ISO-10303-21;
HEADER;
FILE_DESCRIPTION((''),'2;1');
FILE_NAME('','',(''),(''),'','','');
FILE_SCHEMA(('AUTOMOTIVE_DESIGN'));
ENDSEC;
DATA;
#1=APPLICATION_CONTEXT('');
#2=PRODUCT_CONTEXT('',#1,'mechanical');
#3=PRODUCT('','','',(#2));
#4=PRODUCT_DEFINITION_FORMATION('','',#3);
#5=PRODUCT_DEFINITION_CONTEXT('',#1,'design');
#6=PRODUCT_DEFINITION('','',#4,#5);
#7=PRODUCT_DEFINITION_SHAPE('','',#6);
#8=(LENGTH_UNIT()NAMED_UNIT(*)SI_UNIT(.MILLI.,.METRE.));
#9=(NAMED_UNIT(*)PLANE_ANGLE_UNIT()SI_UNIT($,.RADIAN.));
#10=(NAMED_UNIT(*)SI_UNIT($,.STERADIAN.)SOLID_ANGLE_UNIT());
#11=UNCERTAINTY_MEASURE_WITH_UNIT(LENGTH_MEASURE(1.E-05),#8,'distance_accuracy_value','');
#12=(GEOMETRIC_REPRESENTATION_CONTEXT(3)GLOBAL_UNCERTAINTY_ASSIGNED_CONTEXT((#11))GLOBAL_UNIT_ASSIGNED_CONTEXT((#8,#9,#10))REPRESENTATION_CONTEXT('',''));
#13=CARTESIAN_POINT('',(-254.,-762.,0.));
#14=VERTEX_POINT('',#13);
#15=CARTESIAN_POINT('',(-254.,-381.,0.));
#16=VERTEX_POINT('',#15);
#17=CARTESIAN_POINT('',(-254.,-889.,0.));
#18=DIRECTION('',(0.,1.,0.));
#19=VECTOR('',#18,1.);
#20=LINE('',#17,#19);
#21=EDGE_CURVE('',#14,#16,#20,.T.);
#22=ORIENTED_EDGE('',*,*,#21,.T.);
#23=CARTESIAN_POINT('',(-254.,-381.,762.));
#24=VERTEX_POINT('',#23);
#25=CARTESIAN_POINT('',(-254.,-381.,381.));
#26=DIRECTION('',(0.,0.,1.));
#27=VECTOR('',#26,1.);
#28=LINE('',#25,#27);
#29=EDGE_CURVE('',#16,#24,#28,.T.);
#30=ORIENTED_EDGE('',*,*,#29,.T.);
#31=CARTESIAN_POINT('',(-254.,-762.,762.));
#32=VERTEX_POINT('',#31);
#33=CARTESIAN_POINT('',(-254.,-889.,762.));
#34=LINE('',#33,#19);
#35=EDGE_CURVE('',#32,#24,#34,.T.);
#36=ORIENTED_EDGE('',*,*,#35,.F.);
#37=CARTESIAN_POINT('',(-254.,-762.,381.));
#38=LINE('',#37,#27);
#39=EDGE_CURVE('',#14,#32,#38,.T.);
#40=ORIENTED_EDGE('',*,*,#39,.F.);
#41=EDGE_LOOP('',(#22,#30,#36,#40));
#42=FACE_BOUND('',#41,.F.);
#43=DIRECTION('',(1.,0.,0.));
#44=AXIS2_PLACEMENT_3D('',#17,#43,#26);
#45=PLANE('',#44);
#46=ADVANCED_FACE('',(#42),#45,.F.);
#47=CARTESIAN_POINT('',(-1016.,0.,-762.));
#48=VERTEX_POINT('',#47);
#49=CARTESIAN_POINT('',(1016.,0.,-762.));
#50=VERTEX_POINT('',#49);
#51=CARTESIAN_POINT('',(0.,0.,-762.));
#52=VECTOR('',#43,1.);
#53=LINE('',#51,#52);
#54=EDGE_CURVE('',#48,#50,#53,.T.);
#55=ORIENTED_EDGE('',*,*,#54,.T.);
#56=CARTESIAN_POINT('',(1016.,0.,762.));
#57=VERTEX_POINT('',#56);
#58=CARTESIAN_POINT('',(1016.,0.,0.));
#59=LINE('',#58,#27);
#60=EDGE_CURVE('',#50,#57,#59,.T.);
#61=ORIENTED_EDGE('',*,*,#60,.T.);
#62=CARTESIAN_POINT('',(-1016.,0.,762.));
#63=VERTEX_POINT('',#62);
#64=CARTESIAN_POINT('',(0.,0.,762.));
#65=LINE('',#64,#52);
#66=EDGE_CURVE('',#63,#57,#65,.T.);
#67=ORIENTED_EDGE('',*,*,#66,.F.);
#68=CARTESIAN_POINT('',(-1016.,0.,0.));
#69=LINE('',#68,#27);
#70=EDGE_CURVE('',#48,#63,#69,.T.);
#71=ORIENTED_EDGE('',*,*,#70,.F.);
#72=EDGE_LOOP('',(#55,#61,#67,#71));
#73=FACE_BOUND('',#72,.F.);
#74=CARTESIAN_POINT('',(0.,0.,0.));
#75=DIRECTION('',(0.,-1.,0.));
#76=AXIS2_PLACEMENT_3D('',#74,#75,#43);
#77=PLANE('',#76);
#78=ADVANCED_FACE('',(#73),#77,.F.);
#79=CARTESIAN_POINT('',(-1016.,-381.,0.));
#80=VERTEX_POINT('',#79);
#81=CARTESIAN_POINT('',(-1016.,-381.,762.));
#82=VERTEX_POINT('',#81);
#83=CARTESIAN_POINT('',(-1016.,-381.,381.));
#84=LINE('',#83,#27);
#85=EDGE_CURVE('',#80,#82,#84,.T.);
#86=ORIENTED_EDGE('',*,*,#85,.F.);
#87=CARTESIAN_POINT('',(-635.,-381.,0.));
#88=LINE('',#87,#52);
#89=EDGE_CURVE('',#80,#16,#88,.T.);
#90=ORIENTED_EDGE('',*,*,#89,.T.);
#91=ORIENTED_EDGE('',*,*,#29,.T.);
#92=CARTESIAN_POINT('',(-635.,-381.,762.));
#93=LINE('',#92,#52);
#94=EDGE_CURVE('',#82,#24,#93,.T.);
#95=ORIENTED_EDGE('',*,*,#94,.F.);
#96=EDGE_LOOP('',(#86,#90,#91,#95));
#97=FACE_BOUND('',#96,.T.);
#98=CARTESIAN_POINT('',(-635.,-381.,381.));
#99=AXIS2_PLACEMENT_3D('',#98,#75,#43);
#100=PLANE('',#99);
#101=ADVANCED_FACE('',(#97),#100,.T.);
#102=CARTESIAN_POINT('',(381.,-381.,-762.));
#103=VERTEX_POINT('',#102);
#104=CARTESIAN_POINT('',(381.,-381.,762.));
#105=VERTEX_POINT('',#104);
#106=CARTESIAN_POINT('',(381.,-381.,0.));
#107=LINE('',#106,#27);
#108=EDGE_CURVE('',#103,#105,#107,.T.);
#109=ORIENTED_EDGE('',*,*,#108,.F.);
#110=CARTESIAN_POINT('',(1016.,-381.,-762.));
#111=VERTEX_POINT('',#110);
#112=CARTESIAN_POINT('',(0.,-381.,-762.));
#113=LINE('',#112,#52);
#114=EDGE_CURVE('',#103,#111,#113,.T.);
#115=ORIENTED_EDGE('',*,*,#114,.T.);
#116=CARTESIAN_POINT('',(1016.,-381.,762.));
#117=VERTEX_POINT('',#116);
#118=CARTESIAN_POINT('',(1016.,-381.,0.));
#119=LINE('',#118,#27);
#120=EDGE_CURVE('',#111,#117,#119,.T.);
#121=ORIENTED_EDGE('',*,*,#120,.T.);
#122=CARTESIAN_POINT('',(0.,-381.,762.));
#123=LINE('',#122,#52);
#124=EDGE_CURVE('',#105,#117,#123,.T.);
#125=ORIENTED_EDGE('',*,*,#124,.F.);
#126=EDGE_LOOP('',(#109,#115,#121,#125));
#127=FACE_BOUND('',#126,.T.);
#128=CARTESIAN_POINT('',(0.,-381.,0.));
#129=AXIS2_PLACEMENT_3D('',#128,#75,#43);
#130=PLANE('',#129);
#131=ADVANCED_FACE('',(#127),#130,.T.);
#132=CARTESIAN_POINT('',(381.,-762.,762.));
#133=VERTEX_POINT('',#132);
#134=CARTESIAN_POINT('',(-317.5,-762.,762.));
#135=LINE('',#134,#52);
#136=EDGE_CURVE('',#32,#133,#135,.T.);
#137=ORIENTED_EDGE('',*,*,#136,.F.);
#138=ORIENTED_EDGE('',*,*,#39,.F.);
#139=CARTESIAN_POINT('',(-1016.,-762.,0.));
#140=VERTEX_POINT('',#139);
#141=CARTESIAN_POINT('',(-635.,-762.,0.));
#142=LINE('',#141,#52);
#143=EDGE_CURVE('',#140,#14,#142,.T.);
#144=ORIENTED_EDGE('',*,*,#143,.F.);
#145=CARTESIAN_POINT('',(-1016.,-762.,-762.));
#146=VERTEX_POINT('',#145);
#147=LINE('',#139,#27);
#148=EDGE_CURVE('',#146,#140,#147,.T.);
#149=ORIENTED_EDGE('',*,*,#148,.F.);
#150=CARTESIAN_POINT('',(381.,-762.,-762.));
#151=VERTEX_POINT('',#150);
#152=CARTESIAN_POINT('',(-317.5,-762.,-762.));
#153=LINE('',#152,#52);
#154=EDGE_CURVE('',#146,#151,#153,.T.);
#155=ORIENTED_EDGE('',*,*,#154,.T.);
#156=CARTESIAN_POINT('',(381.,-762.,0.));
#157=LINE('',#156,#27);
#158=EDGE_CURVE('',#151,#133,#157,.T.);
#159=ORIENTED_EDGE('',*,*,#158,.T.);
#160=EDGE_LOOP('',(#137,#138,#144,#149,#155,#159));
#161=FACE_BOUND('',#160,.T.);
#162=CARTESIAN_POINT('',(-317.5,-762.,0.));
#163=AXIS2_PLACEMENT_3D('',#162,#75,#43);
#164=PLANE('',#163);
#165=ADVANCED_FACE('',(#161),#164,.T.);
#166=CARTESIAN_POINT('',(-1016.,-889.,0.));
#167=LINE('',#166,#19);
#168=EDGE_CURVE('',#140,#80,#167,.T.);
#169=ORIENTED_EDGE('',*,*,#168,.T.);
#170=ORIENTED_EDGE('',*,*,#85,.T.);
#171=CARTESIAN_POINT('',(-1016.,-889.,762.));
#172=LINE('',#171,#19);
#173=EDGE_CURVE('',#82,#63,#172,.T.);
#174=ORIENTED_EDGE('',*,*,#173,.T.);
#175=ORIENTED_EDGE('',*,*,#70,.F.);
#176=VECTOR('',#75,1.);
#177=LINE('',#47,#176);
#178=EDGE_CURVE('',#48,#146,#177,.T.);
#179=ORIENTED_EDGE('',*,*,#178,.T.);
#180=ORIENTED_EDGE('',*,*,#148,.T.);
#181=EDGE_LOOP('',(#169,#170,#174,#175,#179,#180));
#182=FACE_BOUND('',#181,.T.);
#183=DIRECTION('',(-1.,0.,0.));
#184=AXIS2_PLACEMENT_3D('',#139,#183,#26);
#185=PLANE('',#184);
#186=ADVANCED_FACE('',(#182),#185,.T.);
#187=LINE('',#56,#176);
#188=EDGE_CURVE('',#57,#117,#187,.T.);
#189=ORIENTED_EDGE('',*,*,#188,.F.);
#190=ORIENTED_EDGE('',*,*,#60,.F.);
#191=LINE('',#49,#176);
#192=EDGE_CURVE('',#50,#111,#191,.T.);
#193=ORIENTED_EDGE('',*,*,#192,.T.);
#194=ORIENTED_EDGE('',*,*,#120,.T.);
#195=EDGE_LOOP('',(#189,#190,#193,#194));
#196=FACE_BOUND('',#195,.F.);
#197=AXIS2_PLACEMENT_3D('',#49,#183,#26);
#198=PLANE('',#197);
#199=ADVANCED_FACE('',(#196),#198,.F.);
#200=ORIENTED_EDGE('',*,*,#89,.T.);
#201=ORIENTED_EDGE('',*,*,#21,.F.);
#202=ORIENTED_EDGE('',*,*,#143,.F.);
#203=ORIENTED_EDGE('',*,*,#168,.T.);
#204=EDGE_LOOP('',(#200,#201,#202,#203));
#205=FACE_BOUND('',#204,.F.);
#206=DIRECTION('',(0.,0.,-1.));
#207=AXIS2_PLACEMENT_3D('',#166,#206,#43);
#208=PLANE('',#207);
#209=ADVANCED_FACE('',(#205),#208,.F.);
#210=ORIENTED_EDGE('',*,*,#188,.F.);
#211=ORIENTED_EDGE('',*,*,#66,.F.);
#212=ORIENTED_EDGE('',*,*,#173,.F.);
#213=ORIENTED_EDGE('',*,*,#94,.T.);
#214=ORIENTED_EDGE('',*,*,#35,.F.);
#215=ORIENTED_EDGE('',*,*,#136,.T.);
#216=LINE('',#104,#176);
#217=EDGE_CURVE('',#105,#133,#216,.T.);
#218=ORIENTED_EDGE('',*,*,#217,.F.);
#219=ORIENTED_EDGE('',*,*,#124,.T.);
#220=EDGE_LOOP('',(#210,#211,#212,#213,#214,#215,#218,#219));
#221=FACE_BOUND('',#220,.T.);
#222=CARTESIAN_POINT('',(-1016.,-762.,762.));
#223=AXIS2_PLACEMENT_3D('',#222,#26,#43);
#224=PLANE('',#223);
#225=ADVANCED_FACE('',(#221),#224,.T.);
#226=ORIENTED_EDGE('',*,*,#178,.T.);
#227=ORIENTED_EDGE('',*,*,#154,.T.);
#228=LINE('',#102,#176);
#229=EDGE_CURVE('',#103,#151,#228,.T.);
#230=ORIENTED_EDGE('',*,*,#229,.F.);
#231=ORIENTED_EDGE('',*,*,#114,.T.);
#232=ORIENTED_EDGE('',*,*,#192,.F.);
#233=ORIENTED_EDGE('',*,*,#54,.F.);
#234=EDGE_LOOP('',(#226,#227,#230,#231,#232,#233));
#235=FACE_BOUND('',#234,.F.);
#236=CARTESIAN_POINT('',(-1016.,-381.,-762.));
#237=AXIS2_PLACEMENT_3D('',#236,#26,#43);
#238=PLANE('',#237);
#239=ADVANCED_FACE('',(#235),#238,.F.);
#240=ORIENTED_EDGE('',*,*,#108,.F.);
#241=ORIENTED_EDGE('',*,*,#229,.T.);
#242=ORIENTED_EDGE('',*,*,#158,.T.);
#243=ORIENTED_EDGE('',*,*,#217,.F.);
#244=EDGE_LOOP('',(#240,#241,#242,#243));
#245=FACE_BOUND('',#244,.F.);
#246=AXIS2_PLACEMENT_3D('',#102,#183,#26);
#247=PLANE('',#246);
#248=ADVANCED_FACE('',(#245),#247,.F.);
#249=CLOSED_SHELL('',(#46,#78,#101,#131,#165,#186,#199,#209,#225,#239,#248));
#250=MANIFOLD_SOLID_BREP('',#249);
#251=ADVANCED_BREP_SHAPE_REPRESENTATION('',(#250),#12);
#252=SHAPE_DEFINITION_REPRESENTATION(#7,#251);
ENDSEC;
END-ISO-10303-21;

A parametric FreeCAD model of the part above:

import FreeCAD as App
import Part
import Sketcher

V = App.Vector
Q = App.Units.Quantity


def add_polygon(sketch, points):
    """Adds a closed chain of lines whose ends are joined by coincident constraints."""
    first, n = sketch.GeometryCount, len(points)
    for a, b in zip(points, points[1:] + points[:1]):
        sketch.addGeometry(Part.LineSegment(App.Vector(*a, 0), App.Vector(*b, 0)), False)
    for i in range(n):
        sketch.addConstraint(Sketcher.Constraint("Coincident", first + i, 2, first + (i + 1) % n, 1))

doc = App.newDocument("Part")
body = doc.addObject("PartDesign::Body", "Body")

# Sketch on XZ plane
sketch1 = body.newObject("Sketcher::SketchObject", "Sketch")
sketch1.AttachmentSupport = (doc.getObject("XZ_Plane"), [""])
sketch1.MapMode = "FlatFace"
add_polygon(sketch1, [(-1016, 762), (-1016, -762), (1016, -762), (1016, 762)])  # lines 0-3
sketch1.addConstraint([
    Sketcher.Constraint("Vertical", 0),
    Sketcher.Constraint("Horizontal", 1),
    Sketcher.Constraint("Vertical", 2),
    Sketcher.Constraint("Horizontal", 3),
    Sketcher.Constraint("Symmetric", 0, 2, 2, 2, -1, 1),
    Sketcher.Constraint("DistanceX", 1, 1, 1, 2, Q("80 in")),
    Sketcher.Constraint("DistanceY", 0, 2, 0, 1, Q("60 in")),
])
pad1 = body.newObject("PartDesign::Pad", "Pad")
pad1.Profile = sketch1
pad1.Length = Q("15 in")

# Sketch on XZ plane
sketch2 = body.newObject("Sketcher::SketchObject", "Sketch001")
sketch2.AttachmentSupport = (doc.getObject("XZ_Plane"), [""])
sketch2.MapMode = "FlatFace"
sketch2.AttachmentOffset = App.Placement(V(0, 0, 15 * 25.4), App.Rotation())
add_polygon(sketch2, [(-1016, 762), (-1016, -762), (381, -762), (381, 762)])  # lines 0-3
sketch2.addConstraint([
    Sketcher.Constraint("Vertical", 0),
    Sketcher.Constraint("Horizontal", 1),
    Sketcher.Constraint("Vertical", 2),
    Sketcher.Constraint("Horizontal", 3),
    Sketcher.Constraint("DistanceX", 1, 1, 1, 2, Q("55 in")),
    Sketcher.Constraint("DistanceY", 0, 2, 0, 1, Q("60 in")),
    Sketcher.Constraint("DistanceX", 0, 2, -1, 1, Q("40 in")),
    Sketcher.Constraint("DistanceY", 0, 2, -1, 1, Q("30 in")),
])
pad2 = body.newObject("PartDesign::Pad", "Pad001")
pad2.Profile = sketch2
pad2.Length = Q("15 in")

# Sketch on XZ plane
sketch3 = body.newObject("Sketcher::SketchObject", "Sketch002")
sketch3.AttachmentSupport = (doc.getObject("XZ_Plane"), [""])
sketch3.MapMode = "FlatFace"
sketch3.AttachmentOffset = App.Placement(V(0, 0, 30 * 25.4), App.Rotation())
add_polygon(sketch3, [(-1016, 762), (-1016, 0), (-254, 0), (-254, 762)])  # lines 0-3
sketch3.addConstraint([
    Sketcher.Constraint("Vertical", 0),
    Sketcher.Constraint("Horizontal", 1),
    Sketcher.Constraint("Vertical", 2),
    Sketcher.Constraint("Horizontal", 3),
    Sketcher.Constraint("PointOnObject", 0, 2, -1),
    Sketcher.Constraint("Equal", 3, 0),
    Sketcher.Constraint("DistanceX", 1, 1, 1, 2, Q("30 in")),
    Sketcher.Constraint("DistanceX", 0, 2, -1, 1, Q("40 in")),
])
pad3 = body.newObject("PartDesign::Pad", "Pad002")
pad3.Profile = sketch3
pad3.Length = Q("5 in")

# Sketch on XZ plane
sketch4 = body.newObject("Sketcher::SketchObject", "Sketch003")
sketch4.AttachmentSupport = (doc.getObject("XZ_Plane"), [""])
sketch4.MapMode = "FlatFace"
sketch4.AttachmentOffset = App.Placement(V(0, 0, 35 * 25.4), App.Rotation())
add_polygon(sketch4, [(-1016, 762), (-1016, 0), (-254, 0), (-254, 762)])  # lines 0-3
sketch4.addConstraint([
    Sketcher.Constraint("Vertical", 0),
    Sketcher.Constraint("Horizontal", 1),
    Sketcher.Constraint("Vertical", 2),
    Sketcher.Constraint("Horizontal", 3),
    Sketcher.Constraint("PointOnObject", 0, 2, -1),
    Sketcher.Constraint("Equal", 3, 0),
    Sketcher.Constraint("DistanceX", 1, 1, 1, 2, Q("30 in")),
    Sketcher.Constraint("DistanceX", 0, 2, -1, 1, Q("40 in")),
])
pocket1 = body.newObject("PartDesign::Pocket", "Pocket")
pocket1.Profile = sketch4
pocket1.Length = Q("20 in")

doc.recompute()
